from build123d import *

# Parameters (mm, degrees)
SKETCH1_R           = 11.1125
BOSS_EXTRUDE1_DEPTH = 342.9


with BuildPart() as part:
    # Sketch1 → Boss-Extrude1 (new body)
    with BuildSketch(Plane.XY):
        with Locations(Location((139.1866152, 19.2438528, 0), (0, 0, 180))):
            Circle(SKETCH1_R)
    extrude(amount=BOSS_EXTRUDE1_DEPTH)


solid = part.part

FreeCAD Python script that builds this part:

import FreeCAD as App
import Part
import Sketcher
from FreeCAD import Vector
Q = App.Units.Quantity

doc = App.newDocument("Part")
body = doc.addObject("PartDesign::Body", "Body")

sketch1 = body.newObject("Sketcher::SketchObject", "Sketch")
sketch1.AttachmentSupport = (doc.getObject("XY_Plane"), [""])
sketch1.MapMode = "FlatFace"
sketch1.addGeometry(Part.Circle(Vector(139, 19, 0), Vector(0, 0, 1), 11), False)
sketch1.addConstraint(Sketcher.Constraint("Diameter", 0, Q("0.875 in")))
sketch1.addConstraint(Sketcher.Constraint("DistanceX", -1, 1, 0, 3, Q("139.186615 mm")))
sketch1.addConstraint(Sketcher.Constraint("DistanceY", -1, 1, 0, 3, Q("19.243853 mm")))
pad1 = body.newObject("PartDesign::Pad", "Pad")
pad1.Profile = sketch1
pad1.Length = Q("13.5 in")

doc.recompute()
